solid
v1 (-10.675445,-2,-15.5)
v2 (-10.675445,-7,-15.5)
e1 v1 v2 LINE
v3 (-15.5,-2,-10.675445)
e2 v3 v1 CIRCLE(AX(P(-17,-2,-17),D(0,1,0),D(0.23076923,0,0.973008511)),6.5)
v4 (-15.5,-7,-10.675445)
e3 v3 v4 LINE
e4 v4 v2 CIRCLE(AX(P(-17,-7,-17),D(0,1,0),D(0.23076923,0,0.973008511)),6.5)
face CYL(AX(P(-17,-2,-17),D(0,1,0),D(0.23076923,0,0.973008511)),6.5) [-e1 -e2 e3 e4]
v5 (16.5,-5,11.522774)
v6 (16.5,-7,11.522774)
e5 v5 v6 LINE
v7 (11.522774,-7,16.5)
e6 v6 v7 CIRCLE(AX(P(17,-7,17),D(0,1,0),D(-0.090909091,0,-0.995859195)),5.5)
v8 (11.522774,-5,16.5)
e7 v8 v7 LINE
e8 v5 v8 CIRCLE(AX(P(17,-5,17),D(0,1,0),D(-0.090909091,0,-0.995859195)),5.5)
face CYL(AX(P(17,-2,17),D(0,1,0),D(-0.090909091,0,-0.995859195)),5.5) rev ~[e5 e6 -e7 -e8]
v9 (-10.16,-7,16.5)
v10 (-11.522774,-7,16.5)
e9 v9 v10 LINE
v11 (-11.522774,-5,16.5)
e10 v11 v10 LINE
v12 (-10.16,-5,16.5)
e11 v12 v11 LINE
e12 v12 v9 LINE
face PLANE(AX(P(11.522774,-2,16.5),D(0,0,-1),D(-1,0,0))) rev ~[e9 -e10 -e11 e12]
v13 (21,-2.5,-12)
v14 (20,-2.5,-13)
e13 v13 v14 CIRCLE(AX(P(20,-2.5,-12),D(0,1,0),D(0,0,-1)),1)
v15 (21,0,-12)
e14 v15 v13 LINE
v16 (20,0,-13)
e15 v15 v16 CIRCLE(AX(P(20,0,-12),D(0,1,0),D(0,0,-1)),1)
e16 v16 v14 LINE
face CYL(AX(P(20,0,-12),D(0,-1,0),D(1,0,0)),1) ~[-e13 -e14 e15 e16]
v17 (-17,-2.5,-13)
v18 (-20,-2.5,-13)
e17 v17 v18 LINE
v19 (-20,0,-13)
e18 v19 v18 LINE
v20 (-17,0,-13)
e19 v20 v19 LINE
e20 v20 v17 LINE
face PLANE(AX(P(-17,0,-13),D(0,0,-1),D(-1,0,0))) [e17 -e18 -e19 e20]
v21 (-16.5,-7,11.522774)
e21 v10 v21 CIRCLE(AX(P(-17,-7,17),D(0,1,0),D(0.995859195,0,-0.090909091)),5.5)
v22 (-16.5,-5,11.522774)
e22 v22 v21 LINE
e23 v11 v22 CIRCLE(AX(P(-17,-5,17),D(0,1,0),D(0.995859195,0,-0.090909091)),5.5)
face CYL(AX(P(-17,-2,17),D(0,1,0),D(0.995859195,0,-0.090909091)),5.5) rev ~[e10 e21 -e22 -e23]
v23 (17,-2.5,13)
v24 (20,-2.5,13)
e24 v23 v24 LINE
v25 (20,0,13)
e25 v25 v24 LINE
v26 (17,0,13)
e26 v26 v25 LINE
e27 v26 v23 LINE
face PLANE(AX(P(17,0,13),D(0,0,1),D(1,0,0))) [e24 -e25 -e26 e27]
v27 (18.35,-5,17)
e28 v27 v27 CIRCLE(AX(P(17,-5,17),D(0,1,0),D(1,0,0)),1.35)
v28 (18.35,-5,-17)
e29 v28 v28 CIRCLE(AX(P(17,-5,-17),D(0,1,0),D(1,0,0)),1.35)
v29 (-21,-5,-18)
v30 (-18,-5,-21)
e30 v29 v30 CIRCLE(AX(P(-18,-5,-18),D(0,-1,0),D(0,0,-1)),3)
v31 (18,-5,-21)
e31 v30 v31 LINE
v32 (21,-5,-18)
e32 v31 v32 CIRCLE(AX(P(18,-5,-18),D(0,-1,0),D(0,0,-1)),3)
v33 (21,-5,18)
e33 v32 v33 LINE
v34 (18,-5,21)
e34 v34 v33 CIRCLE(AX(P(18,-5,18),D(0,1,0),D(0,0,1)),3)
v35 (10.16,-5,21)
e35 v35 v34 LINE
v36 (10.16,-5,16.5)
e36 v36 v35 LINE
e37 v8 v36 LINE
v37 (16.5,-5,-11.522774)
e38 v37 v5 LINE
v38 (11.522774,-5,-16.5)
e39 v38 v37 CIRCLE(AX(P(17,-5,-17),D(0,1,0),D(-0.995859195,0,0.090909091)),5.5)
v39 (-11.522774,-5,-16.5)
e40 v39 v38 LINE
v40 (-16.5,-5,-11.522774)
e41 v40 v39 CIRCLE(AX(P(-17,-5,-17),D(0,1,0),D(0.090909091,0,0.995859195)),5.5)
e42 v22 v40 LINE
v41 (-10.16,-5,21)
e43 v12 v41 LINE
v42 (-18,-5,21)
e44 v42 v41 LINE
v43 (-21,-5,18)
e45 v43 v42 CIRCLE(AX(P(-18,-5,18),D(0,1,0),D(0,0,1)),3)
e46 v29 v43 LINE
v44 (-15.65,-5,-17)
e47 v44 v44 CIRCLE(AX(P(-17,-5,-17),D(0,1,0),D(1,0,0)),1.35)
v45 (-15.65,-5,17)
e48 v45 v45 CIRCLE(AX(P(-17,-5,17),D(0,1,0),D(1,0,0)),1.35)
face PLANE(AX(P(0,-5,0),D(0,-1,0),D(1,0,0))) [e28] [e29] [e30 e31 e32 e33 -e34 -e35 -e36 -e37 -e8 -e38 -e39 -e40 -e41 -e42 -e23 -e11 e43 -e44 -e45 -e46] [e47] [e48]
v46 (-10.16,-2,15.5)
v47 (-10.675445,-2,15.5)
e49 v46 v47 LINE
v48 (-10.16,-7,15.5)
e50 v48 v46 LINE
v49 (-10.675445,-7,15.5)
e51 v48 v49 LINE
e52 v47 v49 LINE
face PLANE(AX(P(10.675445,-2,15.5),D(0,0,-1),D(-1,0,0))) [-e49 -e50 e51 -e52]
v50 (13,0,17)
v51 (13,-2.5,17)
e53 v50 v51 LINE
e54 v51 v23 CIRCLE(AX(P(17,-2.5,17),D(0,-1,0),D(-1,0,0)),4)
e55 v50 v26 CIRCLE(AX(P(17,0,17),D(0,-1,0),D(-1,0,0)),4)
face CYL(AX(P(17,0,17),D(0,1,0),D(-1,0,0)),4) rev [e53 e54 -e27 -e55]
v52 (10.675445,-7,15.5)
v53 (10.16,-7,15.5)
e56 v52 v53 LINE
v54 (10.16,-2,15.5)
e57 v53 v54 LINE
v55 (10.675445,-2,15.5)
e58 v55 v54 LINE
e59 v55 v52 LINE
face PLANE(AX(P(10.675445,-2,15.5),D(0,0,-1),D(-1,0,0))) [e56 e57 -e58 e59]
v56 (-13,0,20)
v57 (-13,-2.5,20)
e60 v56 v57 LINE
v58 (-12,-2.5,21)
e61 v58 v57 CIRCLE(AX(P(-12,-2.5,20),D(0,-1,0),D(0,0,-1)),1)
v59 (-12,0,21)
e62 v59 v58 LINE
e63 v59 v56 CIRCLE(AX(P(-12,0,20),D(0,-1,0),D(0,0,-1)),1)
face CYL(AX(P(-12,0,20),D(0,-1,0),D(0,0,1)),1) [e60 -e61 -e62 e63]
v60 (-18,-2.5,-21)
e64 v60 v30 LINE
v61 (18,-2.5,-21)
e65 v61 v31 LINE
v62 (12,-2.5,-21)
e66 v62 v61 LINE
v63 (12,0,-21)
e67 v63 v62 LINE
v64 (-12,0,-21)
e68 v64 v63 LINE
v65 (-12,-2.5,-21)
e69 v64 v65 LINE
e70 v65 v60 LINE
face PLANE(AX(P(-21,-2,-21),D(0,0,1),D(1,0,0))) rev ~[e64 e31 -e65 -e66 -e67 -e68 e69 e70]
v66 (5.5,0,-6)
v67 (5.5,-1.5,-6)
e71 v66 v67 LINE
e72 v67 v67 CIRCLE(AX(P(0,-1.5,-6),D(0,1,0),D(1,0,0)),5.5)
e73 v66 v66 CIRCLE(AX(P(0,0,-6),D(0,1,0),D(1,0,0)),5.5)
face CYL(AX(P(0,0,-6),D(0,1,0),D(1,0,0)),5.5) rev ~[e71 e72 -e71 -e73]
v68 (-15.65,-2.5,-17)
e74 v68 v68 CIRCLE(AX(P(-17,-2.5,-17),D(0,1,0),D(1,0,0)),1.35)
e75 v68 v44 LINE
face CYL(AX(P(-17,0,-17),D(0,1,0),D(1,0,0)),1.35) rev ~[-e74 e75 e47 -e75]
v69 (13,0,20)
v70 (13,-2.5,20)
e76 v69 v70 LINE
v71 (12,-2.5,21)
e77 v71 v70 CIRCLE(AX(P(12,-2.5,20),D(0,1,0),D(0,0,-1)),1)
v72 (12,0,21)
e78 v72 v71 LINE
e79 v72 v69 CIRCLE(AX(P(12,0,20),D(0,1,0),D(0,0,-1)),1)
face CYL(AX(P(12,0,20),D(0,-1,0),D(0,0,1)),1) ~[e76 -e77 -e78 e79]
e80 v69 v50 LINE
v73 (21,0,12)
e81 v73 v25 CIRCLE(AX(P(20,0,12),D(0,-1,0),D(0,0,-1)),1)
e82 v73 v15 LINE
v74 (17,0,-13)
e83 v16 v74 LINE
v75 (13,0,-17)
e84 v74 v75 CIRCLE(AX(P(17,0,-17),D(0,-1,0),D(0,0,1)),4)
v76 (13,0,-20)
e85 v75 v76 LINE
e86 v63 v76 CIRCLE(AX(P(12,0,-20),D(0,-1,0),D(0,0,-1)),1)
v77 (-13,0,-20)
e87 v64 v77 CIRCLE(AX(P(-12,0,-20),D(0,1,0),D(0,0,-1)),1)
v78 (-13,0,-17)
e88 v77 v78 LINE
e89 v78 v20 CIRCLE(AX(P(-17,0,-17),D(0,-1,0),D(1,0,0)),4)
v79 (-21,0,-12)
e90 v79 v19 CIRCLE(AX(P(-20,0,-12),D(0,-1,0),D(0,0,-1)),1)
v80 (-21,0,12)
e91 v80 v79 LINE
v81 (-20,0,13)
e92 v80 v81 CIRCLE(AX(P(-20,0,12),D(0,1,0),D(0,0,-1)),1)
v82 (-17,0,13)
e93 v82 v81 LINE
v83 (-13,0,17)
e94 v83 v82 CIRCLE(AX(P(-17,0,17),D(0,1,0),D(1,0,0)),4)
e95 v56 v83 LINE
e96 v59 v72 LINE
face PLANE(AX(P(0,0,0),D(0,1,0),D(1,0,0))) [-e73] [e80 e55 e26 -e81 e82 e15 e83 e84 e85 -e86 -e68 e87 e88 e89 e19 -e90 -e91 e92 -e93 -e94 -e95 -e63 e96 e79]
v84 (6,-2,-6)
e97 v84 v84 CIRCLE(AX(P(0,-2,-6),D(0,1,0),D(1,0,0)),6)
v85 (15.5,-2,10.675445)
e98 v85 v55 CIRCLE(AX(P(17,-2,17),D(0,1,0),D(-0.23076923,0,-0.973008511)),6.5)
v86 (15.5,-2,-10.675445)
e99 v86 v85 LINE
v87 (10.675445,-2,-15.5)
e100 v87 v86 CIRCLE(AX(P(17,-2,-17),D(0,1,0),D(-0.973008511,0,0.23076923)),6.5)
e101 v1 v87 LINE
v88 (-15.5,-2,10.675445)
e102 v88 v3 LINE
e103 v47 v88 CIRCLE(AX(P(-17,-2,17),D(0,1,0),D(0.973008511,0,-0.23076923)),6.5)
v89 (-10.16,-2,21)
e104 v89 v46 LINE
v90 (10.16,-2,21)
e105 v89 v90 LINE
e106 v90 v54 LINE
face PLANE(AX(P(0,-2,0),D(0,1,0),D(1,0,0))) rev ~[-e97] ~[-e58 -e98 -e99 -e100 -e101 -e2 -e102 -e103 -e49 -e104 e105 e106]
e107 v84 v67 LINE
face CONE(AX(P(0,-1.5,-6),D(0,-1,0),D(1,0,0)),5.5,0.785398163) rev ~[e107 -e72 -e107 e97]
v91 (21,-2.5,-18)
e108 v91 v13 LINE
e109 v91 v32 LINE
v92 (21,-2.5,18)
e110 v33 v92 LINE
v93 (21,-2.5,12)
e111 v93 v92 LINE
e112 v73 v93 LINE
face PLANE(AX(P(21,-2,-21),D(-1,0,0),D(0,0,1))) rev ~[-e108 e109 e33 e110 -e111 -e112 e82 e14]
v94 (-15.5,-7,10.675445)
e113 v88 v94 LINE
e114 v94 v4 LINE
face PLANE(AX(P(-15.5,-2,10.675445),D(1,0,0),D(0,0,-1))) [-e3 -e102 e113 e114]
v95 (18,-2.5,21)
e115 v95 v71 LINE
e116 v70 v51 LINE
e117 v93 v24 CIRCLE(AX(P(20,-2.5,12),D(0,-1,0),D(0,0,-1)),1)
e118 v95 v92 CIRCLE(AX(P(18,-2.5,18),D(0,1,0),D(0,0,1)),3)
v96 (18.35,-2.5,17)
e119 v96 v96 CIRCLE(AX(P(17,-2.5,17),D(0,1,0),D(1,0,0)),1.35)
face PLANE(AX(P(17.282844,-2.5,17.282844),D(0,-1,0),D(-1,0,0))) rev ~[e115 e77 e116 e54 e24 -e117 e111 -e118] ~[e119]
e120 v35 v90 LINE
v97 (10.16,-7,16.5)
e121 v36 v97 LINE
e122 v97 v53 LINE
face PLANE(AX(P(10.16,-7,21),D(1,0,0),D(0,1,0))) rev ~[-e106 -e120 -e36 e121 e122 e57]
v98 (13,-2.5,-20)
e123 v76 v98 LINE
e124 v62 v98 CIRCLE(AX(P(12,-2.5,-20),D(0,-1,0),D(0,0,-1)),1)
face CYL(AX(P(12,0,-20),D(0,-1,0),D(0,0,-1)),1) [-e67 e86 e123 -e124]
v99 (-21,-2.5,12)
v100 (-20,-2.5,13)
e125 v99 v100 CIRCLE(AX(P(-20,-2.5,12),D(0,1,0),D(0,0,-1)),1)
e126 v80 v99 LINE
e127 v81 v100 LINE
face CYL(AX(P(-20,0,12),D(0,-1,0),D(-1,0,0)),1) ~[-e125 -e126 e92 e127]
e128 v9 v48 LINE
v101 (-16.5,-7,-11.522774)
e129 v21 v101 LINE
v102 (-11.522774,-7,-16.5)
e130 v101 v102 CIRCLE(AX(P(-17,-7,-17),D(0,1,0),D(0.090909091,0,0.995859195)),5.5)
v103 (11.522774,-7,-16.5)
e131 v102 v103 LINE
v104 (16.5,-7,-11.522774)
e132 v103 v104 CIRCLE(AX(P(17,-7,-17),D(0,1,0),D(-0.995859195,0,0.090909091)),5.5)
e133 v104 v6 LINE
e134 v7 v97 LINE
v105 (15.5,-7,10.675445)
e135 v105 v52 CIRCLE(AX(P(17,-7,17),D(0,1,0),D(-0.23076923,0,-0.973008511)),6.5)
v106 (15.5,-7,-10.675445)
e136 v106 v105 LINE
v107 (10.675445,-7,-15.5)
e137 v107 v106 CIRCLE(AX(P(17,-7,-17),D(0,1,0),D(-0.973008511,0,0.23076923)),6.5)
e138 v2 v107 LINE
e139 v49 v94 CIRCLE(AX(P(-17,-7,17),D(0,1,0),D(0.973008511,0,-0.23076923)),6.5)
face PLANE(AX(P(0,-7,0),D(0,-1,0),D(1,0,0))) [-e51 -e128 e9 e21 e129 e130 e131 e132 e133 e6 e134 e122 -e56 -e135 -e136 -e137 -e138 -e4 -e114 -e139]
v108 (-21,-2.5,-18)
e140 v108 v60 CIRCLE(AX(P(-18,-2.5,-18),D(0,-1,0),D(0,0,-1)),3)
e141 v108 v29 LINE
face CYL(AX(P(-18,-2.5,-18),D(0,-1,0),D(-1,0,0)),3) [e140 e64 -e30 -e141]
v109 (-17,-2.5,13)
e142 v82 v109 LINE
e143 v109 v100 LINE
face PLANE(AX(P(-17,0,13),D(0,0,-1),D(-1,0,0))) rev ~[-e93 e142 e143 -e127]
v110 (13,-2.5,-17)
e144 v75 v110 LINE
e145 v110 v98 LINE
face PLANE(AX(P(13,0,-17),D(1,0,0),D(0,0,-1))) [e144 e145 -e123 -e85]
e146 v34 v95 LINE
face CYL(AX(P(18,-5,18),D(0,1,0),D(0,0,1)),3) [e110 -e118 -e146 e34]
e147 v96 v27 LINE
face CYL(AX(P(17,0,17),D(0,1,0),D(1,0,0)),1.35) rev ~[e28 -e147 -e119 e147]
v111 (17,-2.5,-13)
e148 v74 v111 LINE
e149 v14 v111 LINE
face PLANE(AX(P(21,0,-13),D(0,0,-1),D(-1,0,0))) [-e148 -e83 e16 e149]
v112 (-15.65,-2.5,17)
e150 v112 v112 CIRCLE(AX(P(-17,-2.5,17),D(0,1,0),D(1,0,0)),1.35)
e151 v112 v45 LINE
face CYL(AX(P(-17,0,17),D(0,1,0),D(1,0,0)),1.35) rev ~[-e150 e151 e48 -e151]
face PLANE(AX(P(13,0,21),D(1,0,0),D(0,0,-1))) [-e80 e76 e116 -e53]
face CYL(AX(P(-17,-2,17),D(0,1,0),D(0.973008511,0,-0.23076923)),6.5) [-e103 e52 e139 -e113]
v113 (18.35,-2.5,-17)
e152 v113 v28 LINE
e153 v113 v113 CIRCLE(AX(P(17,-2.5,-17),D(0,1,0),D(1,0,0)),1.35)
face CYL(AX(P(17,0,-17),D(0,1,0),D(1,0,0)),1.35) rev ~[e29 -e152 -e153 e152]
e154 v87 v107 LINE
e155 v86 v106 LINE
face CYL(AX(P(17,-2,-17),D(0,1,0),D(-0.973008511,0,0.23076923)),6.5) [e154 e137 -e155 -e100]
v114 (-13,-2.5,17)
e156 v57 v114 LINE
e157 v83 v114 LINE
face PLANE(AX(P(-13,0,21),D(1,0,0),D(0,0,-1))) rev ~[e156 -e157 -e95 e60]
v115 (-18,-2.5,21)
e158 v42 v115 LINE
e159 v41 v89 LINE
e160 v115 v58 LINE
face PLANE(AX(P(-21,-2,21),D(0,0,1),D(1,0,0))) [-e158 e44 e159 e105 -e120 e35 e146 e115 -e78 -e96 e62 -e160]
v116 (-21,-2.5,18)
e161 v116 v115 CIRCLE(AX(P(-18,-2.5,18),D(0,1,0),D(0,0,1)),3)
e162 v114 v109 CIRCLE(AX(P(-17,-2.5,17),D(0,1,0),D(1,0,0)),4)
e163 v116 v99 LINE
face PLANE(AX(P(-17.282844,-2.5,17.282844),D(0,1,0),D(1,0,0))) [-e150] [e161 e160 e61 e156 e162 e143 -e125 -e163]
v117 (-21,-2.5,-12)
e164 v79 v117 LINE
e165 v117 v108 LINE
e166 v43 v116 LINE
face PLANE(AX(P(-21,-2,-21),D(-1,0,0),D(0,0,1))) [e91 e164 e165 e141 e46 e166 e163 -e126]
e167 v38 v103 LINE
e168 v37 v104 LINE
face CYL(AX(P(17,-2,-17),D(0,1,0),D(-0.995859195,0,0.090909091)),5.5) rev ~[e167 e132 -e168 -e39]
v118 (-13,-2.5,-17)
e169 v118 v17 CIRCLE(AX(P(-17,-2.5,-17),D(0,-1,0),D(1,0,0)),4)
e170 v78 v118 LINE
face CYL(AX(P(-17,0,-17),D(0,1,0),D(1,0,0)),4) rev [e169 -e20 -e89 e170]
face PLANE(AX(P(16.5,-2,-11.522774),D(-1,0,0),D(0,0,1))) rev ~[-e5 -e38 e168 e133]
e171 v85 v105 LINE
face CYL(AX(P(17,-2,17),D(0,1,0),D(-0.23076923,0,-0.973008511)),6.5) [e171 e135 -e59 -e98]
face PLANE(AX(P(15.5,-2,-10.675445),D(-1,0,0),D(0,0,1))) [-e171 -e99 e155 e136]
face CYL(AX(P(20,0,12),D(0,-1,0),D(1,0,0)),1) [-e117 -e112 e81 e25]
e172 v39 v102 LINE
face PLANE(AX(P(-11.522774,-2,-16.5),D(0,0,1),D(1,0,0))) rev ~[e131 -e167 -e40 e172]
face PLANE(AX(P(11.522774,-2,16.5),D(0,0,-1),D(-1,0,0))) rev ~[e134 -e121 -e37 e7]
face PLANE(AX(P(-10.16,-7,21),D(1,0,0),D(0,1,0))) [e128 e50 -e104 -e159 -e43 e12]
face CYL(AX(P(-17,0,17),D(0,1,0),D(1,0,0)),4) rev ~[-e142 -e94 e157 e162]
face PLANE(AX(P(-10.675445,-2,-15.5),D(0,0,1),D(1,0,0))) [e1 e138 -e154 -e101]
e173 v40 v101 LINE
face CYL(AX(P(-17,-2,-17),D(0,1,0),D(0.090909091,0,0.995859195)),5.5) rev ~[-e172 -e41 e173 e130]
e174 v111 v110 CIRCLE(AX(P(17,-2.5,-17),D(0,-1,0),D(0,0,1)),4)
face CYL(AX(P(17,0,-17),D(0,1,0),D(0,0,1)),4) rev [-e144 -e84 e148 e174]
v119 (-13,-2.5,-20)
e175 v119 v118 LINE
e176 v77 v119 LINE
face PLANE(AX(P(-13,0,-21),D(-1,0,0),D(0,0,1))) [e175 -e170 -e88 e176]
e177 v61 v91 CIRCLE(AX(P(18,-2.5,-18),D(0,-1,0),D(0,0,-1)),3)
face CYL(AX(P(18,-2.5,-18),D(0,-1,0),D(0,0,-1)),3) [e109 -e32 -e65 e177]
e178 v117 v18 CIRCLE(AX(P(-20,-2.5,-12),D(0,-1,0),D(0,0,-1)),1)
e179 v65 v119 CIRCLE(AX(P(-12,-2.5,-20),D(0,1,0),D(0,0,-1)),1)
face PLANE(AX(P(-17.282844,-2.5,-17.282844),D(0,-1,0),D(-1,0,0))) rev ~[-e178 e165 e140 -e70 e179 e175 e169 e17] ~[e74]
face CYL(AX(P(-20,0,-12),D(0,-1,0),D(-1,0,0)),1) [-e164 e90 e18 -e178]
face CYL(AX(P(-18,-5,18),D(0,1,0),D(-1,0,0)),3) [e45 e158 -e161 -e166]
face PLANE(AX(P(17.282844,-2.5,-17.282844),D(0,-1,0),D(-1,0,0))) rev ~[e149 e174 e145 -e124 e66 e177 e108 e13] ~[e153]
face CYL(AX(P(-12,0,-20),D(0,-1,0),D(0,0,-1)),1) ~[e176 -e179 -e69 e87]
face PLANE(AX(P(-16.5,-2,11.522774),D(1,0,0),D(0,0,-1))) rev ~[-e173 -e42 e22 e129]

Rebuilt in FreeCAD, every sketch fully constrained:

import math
import FreeCAD as App
import Part
import Sketcher
Q = App.Units.Quantity


def edges_at(feature, points):
    """Names of the edges that pass closest to the given points."""
    edges = feature.Shape.Edges
    near = lambda p: min(range(len(edges)), key=lambda i: edges[i].distToShape(Part.Vertex(*p))[0])
    return sorted({f"Edge{near(p) + 1}" for p in points})


def add_polygon(sketch, points):
    """Adds a closed chain of lines whose ends are joined by coincident constraints."""
    first, n = sketch.GeometryCount, len(points)
    for a, b in zip(points, points[1:] + points[:1]):
        sketch.addGeometry(Part.LineSegment(App.Vector(*a, 0), App.Vector(*b, 0)), False)
    for i in range(n):
        sketch.addConstraint(Sketcher.Constraint("Coincident", first + i, 2, first + (i + 1) % n, 1))

doc = App.newDocument("Part")
body = doc.addObject("PartDesign::Body", "Body")

# Sketch on XZ plane
sketch1 = doc.addObject("Sketcher::SketchObject", "Sketch")
body.addObject(sketch1)
sketch1.AttachmentSupport = (doc.XZ_Plane, [""])
sketch1.MapMode = "FlatFace"
add_polygon(sketch1, [(-21, -21), (-21, 21), (21, 21), (21, -21)])  # lines 0-3
sketch1.addGeometry(Part.Circle(App.Vector(0, -6, 0), App.Vector(0, 0, 1), 5.5), False)  # 4
sketch1.addConstraint(Sketcher.Constraint("Vertical", 0))
sketch1.addConstraint(Sketcher.Constraint("Horizontal", 1))
sketch1.addConstraint(Sketcher.Constraint("Vertical", 2))
sketch1.addConstraint(Sketcher.Constraint("Horizontal", 3))
sketch1.addConstraint(Sketcher.Constraint("Symmetric", 0, 2, 2, 2, -1, 1))
sketch1.addConstraint(Sketcher.Constraint("PointOnObject", 4, 3, -2))
sketch1.addConstraint(Sketcher.Constraint("Equal", 3, 0))
sketch1.addConstraint(Sketcher.Constraint("Diameter", 4, Q("11 mm")))
sketch1.addConstraint(Sketcher.Constraint("DistanceX", 1, 1, 1, 2, Q("42 mm")))
sketch1.addConstraint(Sketcher.Constraint("DistanceY", 4, 3, -1, 1, Q("6 mm")))
pad1 = doc.addObject("PartDesign::Pad", "Pad")
body.addObject(pad1)
pad1.Profile = sketch1
pad1.Length = 2

# Sketch on XZ plane
sketch2 = doc.addObject("Sketcher::SketchObject", "Sketch001")
body.addObject(sketch2)
sketch2.AttachmentSupport = (doc.XZ_Plane, [""])
sketch2.MapMode = "FlatFace"
sketch2.AttachmentOffset = App.Placement(App.Vector(0, 0, 2), App.Rotation())
add_polygon(sketch2, [(-21, 21), (-21, -21), (21, -21), (21, 21)])  # lines 0-3
sketch2.addGeometry(Part.LineSegment(App.Vector(-17, -11.522774, 0), App.Vector(-17, 11.522774, 0)), False)  # 4
sketch2.addGeometry(Part.ArcOfCircle(Part.Circle(App.Vector(-16.5, 11.522774, 0), App.Vector(0, 0, 1), 0.5), math.radians(95.215909), math.radians(180)), False)  # 5
sketch2.addGeometry(Part.ArcOfCircle(Part.Circle(App.Vector(-17, 17, 0), App.Vector(0, 0, 1), 5), math.radians(-84.784091), math.radians(-5.215909)), False)  # 6
sketch2.addGeometry(Part.ArcOfCircle(Part.Circle(App.Vector(-11.522774, 16.5, 0), App.Vector(0, 0, 1), 0.5), math.radians(90), math.radians(174.784091)), False)  # 7
sketch2.addGeometry(Part.LineSegment(App.Vector(-11.522774, 17, 0), App.Vector(11.522774, 17, 0)), False)  # 8
sketch2.addGeometry(Part.ArcOfCircle(Part.Circle(App.Vector(11.522774, 16.5, 0), App.Vector(0, 0, 1), 0.5), math.radians(5.215909), math.radians(90)), False)  # 9
sketch2.addGeometry(Part.ArcOfCircle(Part.Circle(App.Vector(17, 17, 0), App.Vector(0, 0, 1), 5), math.radians(-174.784091), math.radians(-95.215909)), False)  # 10
sketch2.addGeometry(Part.ArcOfCircle(Part.Circle(App.Vector(16.5, 11.522774, 0), App.Vector(0, 0, 1), 0.5), math.radians(0), math.radians(84.784091)), False)  # 11
sketch2.addGeometry(Part.LineSegment(App.Vector(17, 11.522774, 0), App.Vector(17, -11.522774, 0)), False)  # 12
sketch2.addGeometry(Part.ArcOfCircle(Part.Circle(App.Vector(16.5, -11.522774, 0), App.Vector(0, 0, 1), 0.5), math.radians(-84.784091), math.radians(0)), False)  # 13
sketch2.addGeometry(Part.ArcOfCircle(Part.Circle(App.Vector(17, -17, 0), App.Vector(0, 0, 1), 5), math.radians(95.215909), math.radians(174.784091)), False)  # 14
sketch2.addGeometry(Part.ArcOfCircle(Part.Circle(App.Vector(11.522774, -16.5, 0), App.Vector(0, 0, 1), 0.5), math.radians(-90), math.radians(-5.215909)), False)  # 15
sketch2.addGeometry(Part.LineSegment(App.Vector(11.522774, -17, 0), App.Vector(-11.522774, -17, 0)), False)  # 16
sketch2.addGeometry(Part.ArcOfCircle(Part.Circle(App.Vector(-11.522774, -16.5, 0), App.Vector(0, 0, 1), 0.5), math.radians(-174.784091), math.radians(-90)), False)  # 17
sketch2.addGeometry(Part.ArcOfCircle(Part.Circle(App.Vector(-17, -17, 0), App.Vector(0, 0, 1), 5), math.radians(5.215909), math.radians(84.784091)), False)  # 18
sketch2.addGeometry(Part.ArcOfCircle(Part.Circle(App.Vector(-16.5, -11.522774, 0), App.Vector(0, 0, 1), 0.5), math.radians(180), math.radians(264.784091)), False)  # 19
sketch2.addConstraint(Sketcher.Constraint("Tangent", 4, 2, 5, 2))
sketch2.addConstraint(Sketcher.Constraint("Tangent", 5, 1, 6, 1))
sketch2.addConstraint(Sketcher.Constraint("Tangent", 6, 2, 7, 2))
sketch2.addConstraint(Sketcher.Constraint("Tangent", 7, 1, 8, 1))
sketch2.addConstraint(Sketcher.Constraint("Tangent", 8, 2, 9, 2))
sketch2.addConstraint(Sketcher.Constraint("Tangent", 9, 1, 10, 1))
sketch2.addConstraint(Sketcher.Constraint("Tangent", 10, 2, 11, 2))
sketch2.addConstraint(Sketcher.Constraint("Tangent", 11, 1, 12, 1))
sketch2.addConstraint(Sketcher.Constraint("Tangent", 12, 2, 13, 2))
sketch2.addConstraint(Sketcher.Constraint("Tangent", 13, 1, 14, 1))
sketch2.addConstraint(Sketcher.Constraint("Tangent", 14, 2, 15, 2))
sketch2.addConstraint(Sketcher.Constraint("Tangent", 15, 1, 16, 1))
sketch2.addConstraint(Sketcher.Constraint("Tangent", 16, 2, 17, 2))
sketch2.addConstraint(Sketcher.Constraint("Tangent", 17, 1, 18, 1))
sketch2.addConstraint(Sketcher.Constraint("Tangent", 18, 2, 19, 2))
sketch2.addConstraint(Sketcher.Constraint("Tangent", 19, 1, 4, 1))
sketch2.addConstraint(Sketcher.Constraint("Vertical", 0))
sketch2.addConstraint(Sketcher.Constraint("Horizontal", 1))
sketch2.addConstraint(Sketcher.Constraint("Vertical", 2))
sketch2.addConstraint(Sketcher.Constraint("Horizontal", 3))
sketch2.addConstraint(Sketcher.Constraint("Vertical", 4))
sketch2.addConstraint(Sketcher.Constraint("Horizontal", 8))
sketch2.addConstraint(Sketcher.Constraint("Vertical", 12))
sketch2.addConstraint(Sketcher.Constraint("Horizontal", 16))
sketch2.addConstraint(Sketcher.Constraint("Equal", 5, 7))
sketch2.addConstraint(Sketcher.Constraint("Equal", 7, 9))
sketch2.addConstraint(Sketcher.Constraint("Equal", 6, 10))
sketch2.addConstraint(Sketcher.Constraint("Equal", 9, 11))
sketch2.addConstraint(Sketcher.Constraint("Equal", 11, 13))
sketch2.addConstraint(Sketcher.Constraint("Equal", 10, 14))
sketch2.addConstraint(Sketcher.Constraint("Equal", 13, 15))
sketch2.addConstraint(Sketcher.Constraint("Equal", 15, 17))
sketch2.addConstraint(Sketcher.Constraint("Equal", 14, 18))
sketch2.addConstraint(Sketcher.Constraint("Equal", 17, 19))
sketch2.addConstraint(Sketcher.Constraint("Symmetric", 5, 3, 13, 3, -1, 1))
sketch2.addConstraint(Sketcher.Constraint("Symmetric", 7, 3, 15, 3, -1, 1))
sketch2.addConstraint(Sketcher.Constraint("Symmetric", 10, 3, 18, 3, -1, 1))
sketch2.addConstraint(Sketcher.Constraint("Symmetric", 0, 2, 2, 2, -1, 1))
sketch2.addConstraint(Sketcher.Constraint("Symmetric", 6, 3, 10, 3, -2))
sketch2.addConstraint(Sketcher.Constraint("Horizontal", 10, 3, 7, 1))
sketch2.addConstraint(Sketcher.Constraint("Vertical", 18, 3, 4, 2))
sketch2.addConstraint(Sketcher.Constraint("Equal", 3, 0))
sketch2.addConstraint(Sketcher.Constraint("Equal", 16, 4))
sketch2.addConstraint(Sketcher.Constraint("Radius", 6, Q("5 mm")))
sketch2.addConstraint(Sketcher.Constraint("Radius", 5, Q("0.5 mm")))
sketch2.addConstraint(Sketcher.Constraint("DistanceX", 1, 1, 1, 2, Q("42 mm")))
sketch2.addConstraint(Sketcher.Constraint("DistanceX", 6, 3, -1, 1, Q("17 mm")))
pad2 = doc.addObject("PartDesign::Pad", "Pad001")
body.addObject(pad2)
pad2.Profile = sketch2
pad2.Length = 3

# Sketch on XZ plane
sketch3 = doc.addObject("Sketcher::SketchObject", "Sketch002")
body.addObject(sketch3)
sketch3.AttachmentSupport = (doc.XZ_Plane, [""])
sketch3.MapMode = "FlatFace"
sketch3.AttachmentOffset = App.Placement(App.Vector(0, 0, 2), App.Rotation())
sketch3.addGeometry(Part.LineSegment(App.Vector(-17, 11.522774, 0), App.Vector(-17, -11.522774, 0)), False)
sketch3.addGeometry(Part.ArcOfCircle(Part.Circle(App.Vector(-16.5, -11.522774, 0), App.Vector(0, 0, 1), 0.5), math.radians(180), math.radians(264.784091)), False)
sketch3.addGeometry(Part.ArcOfCircle(Part.Circle(App.Vector(-17, -17, 0), App.Vector(0, 0, 1), 5), math.radians(5.215909), math.radians(84.784091)), False)
sketch3.addGeometry(Part.ArcOfCircle(Part.Circle(App.Vector(-11.522774, -16.5, 0), App.Vector(0, 0, 1), 0.5), math.radians(-174.784091), math.radians(-90)), False)
sketch3.addGeometry(Part.LineSegment(App.Vector(-11.522774, -17, 0), App.Vector(11.522774, -17, 0)), False)
sketch3.addGeometry(Part.ArcOfCircle(Part.Circle(App.Vector(11.522774, -16.5, 0), App.Vector(0, 0, 1), 0.5), math.radians(-90), math.radians(-5.215909)), False)
sketch3.addGeometry(Part.ArcOfCircle(Part.Circle(App.Vector(17, -17, 0), App.Vector(0, 0, 1), 5), math.radians(95.215909), math.radians(174.784091)), False)
sketch3.addGeometry(Part.ArcOfCircle(Part.Circle(App.Vector(16.5, -11.522774, 0), App.Vector(0, 0, 1), 0.5), math.radians(-84.784091), math.radians(0)), False)
sketch3.addGeometry(Part.LineSegment(App.Vector(17, -11.522774, 0), App.Vector(17, 11.522774, 0)), False)
sketch3.addGeometry(Part.ArcOfCircle(Part.Circle(App.Vector(16.5, 11.522774, 0), App.Vector(0, 0, 1), 0.5), math.radians(0), math.radians(84.784091)), False)
sketch3.addGeometry(Part.ArcOfCircle(Part.Circle(App.Vector(17, 17, 0), App.Vector(0, 0, 1), 5), math.radians(-174.784091), math.radians(-95.215909)), False)
sketch3.addGeometry(Part.ArcOfCircle(Part.Circle(App.Vector(11.522774, 16.5, 0), App.Vector(0, 0, 1), 0.5), math.radians(5.215909), math.radians(90)), False)
sketch3.addGeometry(Part.LineSegment(App.Vector(11.522774, 17, 0), App.Vector(-11.522774, 17, 0)), False)
sketch3.addGeometry(Part.ArcOfCircle(Part.Circle(App.Vector(-11.522774, 16.5, 0), App.Vector(0, 0, 1), 0.5), math.radians(90), math.radians(174.784091)), False)
sketch3.addGeometry(Part.ArcOfCircle(Part.Circle(App.Vector(-17, 17, 0), App.Vector(0, 0, 1), 5), math.radians(-84.784091), math.radians(-5.215909)), False)
sketch3.addGeometry(Part.ArcOfCircle(Part.Circle(App.Vector(-16.5, 11.522774, 0), App.Vector(0, 0, 1), 0.5), math.radians(95.215909), math.radians(180)), False)
sketch3.addGeometry(Part.LineSegment(App.Vector(-16.5, -11.522774, 0), App.Vector(-16.5, 11.522774, 0)), False)
sketch3.addGeometry(Part.ArcOfCircle(Part.Circle(App.Vector(-17, 17, 0), App.Vector(0, 0, 1), 5.5), math.radians(-84.784091), math.radians(-5.215909)), False)
sketch3.addGeometry(Part.LineSegment(App.Vector(-11.522774, 16.5, 0), App.Vector(11.522774, 16.5, 0)), False)
sketch3.addGeometry(Part.ArcOfCircle(Part.Circle(App.Vector(17, 17, 0), App.Vector(0, 0, 1), 5.5), math.radians(-174.784091), math.radians(-95.215909)), False)
sketch3.addGeometry(Part.LineSegment(App.Vector(16.5, 11.522774, 0), App.Vector(16.5, -11.522774, 0)), False)
sketch3.addGeometry(Part.ArcOfCircle(Part.Circle(App.Vector(17, -17, 0), App.Vector(0, 0, 1), 5.5), math.radians(95.215909), math.radians(174.784091)), False)
sketch3.addGeometry(Part.LineSegment(App.Vector(11.522774, -16.5, 0), App.Vector(-11.522774, -16.5, 0)), False)
sketch3.addGeometry(Part.ArcOfCircle(Part.Circle(App.Vector(-17, -17, 0), App.Vector(0, 0, 1), 5.5), math.radians(5.215909), math.radians(84.784091)), False)
sketch3.addConstraint(Sketcher.Constraint("Tangent", 0, 2, 1, 1))
sketch3.addConstraint(Sketcher.Constraint("Tangent", 1, 2, 2, 2))
sketch3.addConstraint(Sketcher.Constraint("Tangent", 2, 1, 3, 1))
sketch3.addConstraint(Sketcher.Constraint("Tangent", 3, 2, 4, 1))
sketch3.addConstraint(Sketcher.Constraint("Tangent", 4, 2, 5, 1))
sketch3.addConstraint(Sketcher.Constraint("Tangent", 5, 2, 6, 2))
sketch3.addConstraint(Sketcher.Constraint("Tangent", 6, 1, 7, 1))
sketch3.addConstraint(Sketcher.Constraint("Tangent", 7, 2, 8, 1))
sketch3.addConstraint(Sketcher.Constraint("Tangent", 8, 2, 9, 1))
sketch3.addConstraint(Sketcher.Constraint("Tangent", 9, 2, 10, 2))
sketch3.addConstraint(Sketcher.Constraint("Tangent", 10, 1, 11, 1))
sketch3.addConstraint(Sketcher.Constraint("Tangent", 11, 2, 12, 1))
sketch3.addConstraint(Sketcher.Constraint("Tangent", 12, 2, 13, 1))
sketch3.addConstraint(Sketcher.Constraint("Tangent", 13, 2, 14, 2))
sketch3.addConstraint(Sketcher.Constraint("Tangent", 14, 1, 15, 1))
sketch3.addConstraint(Sketcher.Constraint("Tangent", 15, 2, 0, 1))
sketch3.addConstraint(Sketcher.Constraint("Coincident", 16, 2, 17, 1))
sketch3.addConstraint(Sketcher.Constraint("Coincident", 17, 2, 18, 1))
sketch3.addConstraint(Sketcher.Constraint("Coincident", 18, 2, 19, 1))
sketch3.addConstraint(Sketcher.Constraint("Coincident", 19, 2, 20, 1))
sketch3.addConstraint(Sketcher.Constraint("Coincident", 20, 2, 21, 1))
sketch3.addConstraint(Sketcher.Constraint("Coincident", 21, 2, 22, 1))
sketch3.addConstraint(Sketcher.Constraint("Coincident", 22, 2, 23, 1))
sketch3.addConstraint(Sketcher.Constraint("Coincident", 23, 2, 16, 1))
sketch3.addConstraint(Sketcher.Constraint("Vertical", 0))
sketch3.addConstraint(Sketcher.Constraint("Horizontal", 4))
sketch3.addConstraint(Sketcher.Constraint("Vertical", 8))
sketch3.addConstraint(Sketcher.Constraint("Horizontal", 12))
sketch3.addConstraint(Sketcher.Constraint("Vertical", 16))
sketch3.addConstraint(Sketcher.Constraint("Horizontal", 18))
sketch3.addConstraint(Sketcher.Constraint("Vertical", 20))
sketch3.addConstraint(Sketcher.Constraint("Horizontal", 22))
sketch3.addConstraint(Sketcher.Constraint("Coincident", 17, 3, 14, 3))
sketch3.addConstraint(Sketcher.Constraint("Coincident", 19, 3, 10, 3))
sketch3.addConstraint(Sketcher.Constraint("Coincident", 21, 3, 6, 3))
sketch3.addConstraint(Sketcher.Constraint("Coincident", 23, 3, 2, 3))
sketch3.addConstraint(Sketcher.Constraint("Coincident", 16, 2, 15, 3))
sketch3.addConstraint(Sketcher.Constraint("Coincident", 17, 2, 13, 3))
sketch3.addConstraint(Sketcher.Constraint("Coincident", 18, 2, 11, 3))
sketch3.addConstraint(Sketcher.Constraint("Coincident", 19, 2, 9, 3))
sketch3.addConstraint(Sketcher.Constraint("Coincident", 20, 2, 7, 3))
sketch3.addConstraint(Sketcher.Constraint("Coincident", 21, 2, 5, 3))
sketch3.addConstraint(Sketcher.Constraint("Coincident", 22, 2, 3, 3))
sketch3.addConstraint(Sketcher.Constraint("Equal", 1, 3))
sketch3.addConstraint(Sketcher.Constraint("Equal", 2, 6))
sketch3.addConstraint(Sketcher.Constraint("Equal", 6, 10))
sketch3.addConstraint(Sketcher.Constraint("Equal", 10, 14))
sketch3.addConstraint(Sketcher.Constraint("Symmetric", 1, 3, 9, 3, -1, 1))
sketch3.addConstraint(Sketcher.Constraint("Symmetric", 3, 3, 11, 3, -1, 1))
sketch3.addConstraint(Sketcher.Constraint("Symmetric", 6, 3, 14, 3, -1, 1))
sketch3.addConstraint(Sketcher.Constraint("Symmetric", 2, 3, 6, 3, -2))
sketch3.addConstraint(Sketcher.Constraint("Horizontal", 23, 3, 3, 2))
sketch3.addConstraint(Sketcher.Constraint("Vertical", 23, 3, 0, 2))
sketch3.addConstraint(Sketcher.Constraint("Equal", 22, 0))
sketch3.addConstraint(Sketcher.Constraint("Radius", 2, Q("5 mm")))
sketch3.addConstraint(Sketcher.Constraint("Radius", 1, Q("0.5 mm")))
sketch3.addConstraint(Sketcher.Constraint("DistanceX", 2, 3, -1, 1, Q("17 mm")))
pad3 = doc.addObject("PartDesign::Pad", "Pad002")
body.addObject(pad3)
pad3.Profile = sketch3
pad3.Length = 3

# Sketch on XZ plane
sketch4 = doc.addObject("Sketcher::SketchObject", "Sketch003")
body.addObject(sketch4)
sketch4.AttachmentSupport = (doc.XZ_Plane, [""])
sketch4.MapMode = "FlatFace"
sketch4.AttachmentOffset = App.Placement(App.Vector(0, 0, 2), App.Rotation())
sketch4.addGeometry(Part.LineSegment(App.Vector(11.522774, 16.5, 0), App.Vector(-11.522774, 16.5, 0)), False)
sketch4.addGeometry(Part.ArcOfCircle(Part.Circle(App.Vector(-17, 17, 0), App.Vector(0, 0, 1), 5.5), math.radians(-84.784091), math.radians(-5.215909)), False)
sketch4.addGeometry(Part.LineSegment(App.Vector(-16.5, 11.522774, 0), App.Vector(-16.5, -11.522774, 0)), False)
sketch4.addGeometry(Part.ArcOfCircle(Part.Circle(App.Vector(-17, -17, 0), App.Vector(0, 0, 1), 5.5), math.radians(5.215909), math.radians(84.784091)), False)
sketch4.addGeometry(Part.LineSegment(App.Vector(-11.522774, -16.5, 0), App.Vector(11.522774, -16.5, 0)), False)
sketch4.addGeometry(Part.ArcOfCircle(Part.Circle(App.Vector(17, -17, 0), App.Vector(0, 0, 1), 5.5), math.radians(95.215909), math.radians(174.784091)), False)
sketch4.addGeometry(Part.LineSegment(App.Vector(16.5, -11.522774, 0), App.Vector(16.5, 11.522774, 0)), False)
sketch4.addGeometry(Part.ArcOfCircle(Part.Circle(App.Vector(17, 17, 0), App.Vector(0, 0, 1), 5.5), math.radians(-174.784091), math.radians(-95.215909)), False)
sketch4.addGeometry(Part.LineSegment(App.Vector(-10.675445, 15.5, 0), App.Vector(10.675445, 15.5, 0)), False)
sketch4.addGeometry(Part.ArcOfCircle(Part.Circle(App.Vector(17, 17, 0), App.Vector(0, 0, 1), 6.5), math.radians(-166.657636), math.radians(-103.342364)), False)
sketch4.addGeometry(Part.LineSegment(App.Vector(15.5, 10.675445, 0), App.Vector(15.5, -10.675445, 0)), False)
sketch4.addGeometry(Part.ArcOfCircle(Part.Circle(App.Vector(17, -17, 0), App.Vector(0, 0, 1), 6.5), math.radians(103.342364), math.radians(166.657636)), False)
sketch4.addGeometry(Part.LineSegment(App.Vector(10.675445, -15.5, 0), App.Vector(-10.675445, -15.5, 0)), False)
sketch4.addGeometry(Part.ArcOfCircle(Part.Circle(App.Vector(-17, -17, 0), App.Vector(0, 0, 1), 6.5), math.radians(13.342364), math.radians(76.657636)), False)
sketch4.addGeometry(Part.LineSegment(App.Vector(-15.5, -10.675445, 0), App.Vector(-15.5, 10.675445, 0)), False)
sketch4.addGeometry(Part.ArcOfCircle(Part.Circle(App.Vector(-17, 17, 0), App.Vector(0, 0, 1), 6.5), math.radians(-76.657636), math.radians(-13.342364)), False)
sketch4.addConstraint(Sketcher.Constraint("Coincident", 0, 2, 1, 2))
sketch4.addConstraint(Sketcher.Constraint("Coincident", 1, 1, 2, 1))
sketch4.addConstraint(Sketcher.Constraint("Coincident", 2, 2, 3, 2))
sketch4.addConstraint(Sketcher.Constraint("Coincident", 3, 1, 4, 1))
sketch4.addConstraint(Sketcher.Constraint("Coincident", 4, 2, 5, 2))
sketch4.addConstraint(Sketcher.Constraint("Coincident", 5, 1, 6, 1))
sketch4.addConstraint(Sketcher.Constraint("Coincident", 6, 2, 7, 2))
sketch4.addConstraint(Sketcher.Constraint("Coincident", 7, 1, 0, 1))
sketch4.addConstraint(Sketcher.Constraint("Coincident", 8, 2, 9, 1))
sketch4.addConstraint(Sketcher.Constraint("Coincident", 9, 2, 10, 1))
sketch4.addConstraint(Sketcher.Constraint("Coincident", 10, 2, 11, 1))
sketch4.addConstraint(Sketcher.Constraint("Coincident", 11, 2, 12, 1))
sketch4.addConstraint(Sketcher.Constraint("Coincident", 12, 2, 13, 1))
sketch4.addConstraint(Sketcher.Constraint("Coincident", 13, 2, 14, 1))
sketch4.addConstraint(Sketcher.Constraint("Coincident", 14, 2, 15, 1))
sketch4.addConstraint(Sketcher.Constraint("Coincident", 15, 2, 8, 1))
sketch4.addConstraint(Sketcher.Constraint("Horizontal", 0))
sketch4.addConstraint(Sketcher.Constraint("Vertical", 2))
sketch4.addConstraint(Sketcher.Constraint("Horizontal", 4))
sketch4.addConstraint(Sketcher.Constraint("Vertical", 6))
sketch4.addConstraint(Sketcher.Constraint("Horizontal", 8))
sketch4.addConstraint(Sketcher.Constraint("Vertical", 10))
sketch4.addConstraint(Sketcher.Constraint("Horizontal", 12))
sketch4.addConstraint(Sketcher.Constraint("Vertical", 14))
sketch4.addConstraint(Sketcher.Constraint("Coincident", 9, 3, 7, 3))
sketch4.addConstraint(Sketcher.Constraint("Coincident", 11, 3, 5, 3))
sketch4.addConstraint(Sketcher.Constraint("Coincident", 13, 3, 3, 3))
sketch4.addConstraint(Sketcher.Constraint("Coincident", 15, 3, 1, 3))
sketch4.addConstraint(Sketcher.Constraint("Equal", 1, 3))
sketch4.addConstraint(Sketcher.Constraint("Equal", 3, 5))
sketch4.addConstraint(Sketcher.Constraint("Equal", 5, 7))
sketch4.addConstraint(Sketcher.Constraint("Equal", 9, 11))
sketch4.addConstraint(Sketcher.Constraint("Equal", 11, 13))
sketch4.addConstraint(Sketcher.Constraint("Equal", 13, 15))
sketch4.addConstraint(Sketcher.Constraint("Symmetric", 1, 3, 5, 3, -1, 1))
sketch4.addConstraint(Sketcher.Constraint("Symmetric", 3, 3, 7, 3, -1, 1))
sketch4.addConstraint(Sketcher.Constraint("Symmetric", 3, 3, 5, 3, -2))
sketch4.addConstraint(Sketcher.Constraint("Horizontal", 2, 2, 5, 1))
sketch4.addConstraint(Sketcher.Constraint("Horizontal", 10, 2, 13, 2))
sketch4.addConstraint(Sketcher.Constraint("Vertical", 0, 2, 3, 1))
sketch4.addConstraint(Sketcher.Constraint("Vertical", 8, 2, 11, 2))
sketch4.addConstraint(Sketcher.Constraint("Equal", 4, 2))
sketch4.addConstraint(Sketcher.Constraint("Equal", 12, 10))
sketch4.addConstraint(Sketcher.Constraint("Radius", 1, Q("5.5 mm")))
sketch4.addConstraint(Sketcher.Constraint("Radius", 9, Q("6.5 mm")))
sketch4.addConstraint(Sketcher.Constraint("DistanceX", 1, 3, -1, 1, Q("17 mm")))
sketch4.addConstraint(Sketcher.Constraint("DistanceY", -1, 1, 1, 3, Q("17 mm")))
sketch4.addConstraint(Sketcher.Constraint("DistanceY", 8, 2, 7, 1, Q("1 mm")))
sketch4.addConstraint(Sketcher.Constraint("DistanceY", -1, 1, 0, 2, Q("16.5 mm")))
pad4 = doc.addObject("PartDesign::Pad", "Pad003")
body.addObject(pad4)
pad4.Profile = sketch4
pad4.Length = 5

# Sketch on XZ plane
sketch5 = doc.addObject("Sketcher::SketchObject", "Sketch004")
body.addObject(sketch5)
sketch5.AttachmentSupport = (doc.XZ_Plane, [""])
sketch5.MapMode = "FlatFace"
sketch5.addGeometry(Part.LineSegment(App.Vector(-21, -13, 0), App.Vector(-17, -13, 0)), False)
sketch5.addGeometry(Part.ArcOfCircle(Part.Circle(App.Vector(-17, -17, 0), App.Vector(0, 0, 1), 4), math.radians(0), math.radians(90)), False)
sketch5.addGeometry(Part.LineSegment(App.Vector(-13, -17, 0), App.Vector(-13, -21, 0)), False)
sketch5.addGeometry(Part.LineSegment(App.Vector(-13, -21, 0), App.Vector(-21, -21, 0)), False)
sketch5.addGeometry(Part.LineSegment(App.Vector(-21, -21, 0), App.Vector(-21, -13, 0)), False)
sketch5.addGeometry(Part.LineSegment(App.Vector(13, -21, 0), App.Vector(13, -17, 0)), False)
sketch5.addGeometry(Part.ArcOfCircle(Part.Circle(App.Vector(17, -17, 0), App.Vector(0, 0, 1), 4), math.radians(90), math.radians(180)), False)
sketch5.addGeometry(Part.LineSegment(App.Vector(17, -13, 0), App.Vector(21, -13, 0)), False)
sketch5.addGeometry(Part.LineSegment(App.Vector(21, -13, 0), App.Vector(21, -21, 0)), False)
sketch5.addGeometry(Part.LineSegment(App.Vector(21, -21, 0), App.Vector(13, -21, 0)), False)
sketch5.addGeometry(Part.LineSegment(App.Vector(-21, 21, 0), App.Vector(-13, 21, 0)), False)
sketch5.addGeometry(Part.LineSegment(App.Vector(-13, 21, 0), App.Vector(-13, 17, 0)), False)
sketch5.addGeometry(Part.ArcOfCircle(Part.Circle(App.Vector(-17, 17, 0), App.Vector(0, 0, 1), 4), math.radians(-90), math.radians(0)), False)
sketch5.addGeometry(Part.LineSegment(App.Vector(-17, 13, 0), App.Vector(-21, 13, 0)), False)
sketch5.addGeometry(Part.LineSegment(App.Vector(-21, 13, 0), App.Vector(-21, 21, 0)), False)
sketch5.addGeometry(Part.LineSegment(App.Vector(21, 13, 0), App.Vector(17, 13, 0)), False)
sketch5.addGeometry(Part.ArcOfCircle(Part.Circle(App.Vector(17, 17, 0), App.Vector(0, 0, 1), 4), math.radians(180), math.radians(270)), False)
sketch5.addGeometry(Part.LineSegment(App.Vector(13, 17, 0), App.Vector(13, 21, 0)), False)
sketch5.addGeometry(Part.LineSegment(App.Vector(13, 21, 0), App.Vector(21, 21, 0)), False)
sketch5.addGeometry(Part.LineSegment(App.Vector(21, 21, 0), App.Vector(21, 13, 0)), False)
sketch5.addConstraint(Sketcher.Constraint("Tangent", 0, 2, 1, 2))
sketch5.addConstraint(Sketcher.Constraint("Tangent", 1, 1, 2, 1))
sketch5.addConstraint(Sketcher.Constraint("Coincident", 2, 2, 3, 1))
sketch5.addConstraint(Sketcher.Constraint("Coincident", 3, 2, 4, 1))
sketch5.addConstraint(Sketcher.Constraint("Coincident", 4, 2, 0, 1))
sketch5.addConstraint(Sketcher.Constraint("Tangent", 5, 2, 6, 2))
sketch5.addConstraint(Sketcher.Constraint("Tangent", 6, 1, 7, 1))
sketch5.addConstraint(Sketcher.Constraint("Coincident", 7, 2, 8, 1))
sketch5.addConstraint(Sketcher.Constraint("Coincident", 8, 2, 9, 1))
sketch5.addConstraint(Sketcher.Constraint("Coincident", 9, 2, 5, 1))
sketch5.addConstraint(Sketcher.Constraint("Coincident", 10, 2, 11, 1))
sketch5.addConstraint(Sketcher.Constraint("Tangent", 11, 2, 12, 2))
sketch5.addConstraint(Sketcher.Constraint("Tangent", 12, 1, 13, 1))
sketch5.addConstraint(Sketcher.Constraint("Coincident", 13, 2, 14, 1))
sketch5.addConstraint(Sketcher.Constraint("Coincident", 14, 2, 10, 1))
sketch5.addConstraint(Sketcher.Constraint("Tangent", 15, 2, 16, 2))
sketch5.addConstraint(Sketcher.Constraint("Tangent", 16, 1, 17, 1))
sketch5.addConstraint(Sketcher.Constraint("Coincident", 17, 2, 18, 1))
sketch5.addConstraint(Sketcher.Constraint("Coincident", 18, 2, 19, 1))
sketch5.addConstraint(Sketcher.Constraint("Coincident", 19, 2, 15, 1))
sketch5.addConstraint(Sketcher.Constraint("Horizontal", 0))
sketch5.addConstraint(Sketcher.Constraint("Vertical", 2))
sketch5.addConstraint(Sketcher.Constraint("Horizontal", 3))
sketch5.addConstraint(Sketcher.Constraint("Vertical", 4))
sketch5.addConstraint(Sketcher.Constraint("Vertical", 5))
sketch5.addConstraint(Sketcher.Constraint("Horizontal", 7))
sketch5.addConstraint(Sketcher.Constraint("Vertical", 8))
sketch5.addConstraint(Sketcher.Constraint("Horizontal", 9))
sketch5.addConstraint(Sketcher.Constraint("Horizontal", 10))
sketch5.addConstraint(Sketcher.Constraint("Vertical", 11))
sketch5.addConstraint(Sketcher.Constraint("Horizontal", 13))
sketch5.addConstraint(Sketcher.Constraint("Vertical", 14))
sketch5.addConstraint(Sketcher.Constraint("Horizontal", 15))
sketch5.addConstraint(Sketcher.Constraint("Vertical", 17))
sketch5.addConstraint(Sketcher.Constraint("Horizontal", 18))
sketch5.addConstraint(Sketcher.Constraint("Vertical", 19))
sketch5.addConstraint(Sketcher.Constraint("Equal", 1, 6))
sketch5.addConstraint(Sketcher.Constraint("Equal", 6, 12))
sketch5.addConstraint(Sketcher.Constraint("Equal", 12, 16))
sketch5.addConstraint(Sketcher.Constraint("Symmetric", 6, 3, 12, 3, -1, 1))
sketch5.addConstraint(Sketcher.Constraint("Symmetric", 1, 3, 16, 3, -1, 1))
sketch5.addConstraint(Sketcher.Constraint("Symmetric", 8, 2, 14, 2, -1, 1))
sketch5.addConstraint(Sketcher.Constraint("Symmetric", 3, 2, 18, 2, -1, 1))
sketch5.addConstraint(Sketcher.Constraint("Symmetric", 1, 3, 6, 3, -2))
sketch5.addConstraint(Sketcher.Constraint("Symmetric", 3, 2, 8, 2, -2))
sketch5.addConstraint(Sketcher.Constraint("Equal", 15, 2))
sketch5.addConstraint(Sketcher.Constraint("Radius", 1, Q("4 mm")))
sketch5.addConstraint(Sketcher.Constraint("DistanceX", 0, 1, 0, 2, Q("4 mm")))
sketch5.addConstraint(Sketcher.Constraint("DistanceX", 1, 3, -1, 1, Q("17 mm")))
sketch5.addConstraint(Sketcher.Constraint("DistanceY", 1, 3, -1, 1, Q("17 mm")))
pocket1 = doc.addObject("PartDesign::Pocket", "Pocket")
body.addObject(pocket1)
pocket1.Profile = sketch5
pocket1.Length = 2.5
pocket1.Reversed = True

# Sketch on XZ plane
sketch6 = doc.addObject("Sketcher::SketchObject", "Sketch005")
body.addObject(sketch6)
sketch6.AttachmentSupport = (doc.XZ_Plane, [""])
sketch6.MapMode = "FlatFace"
sketch6.addGeometry(Part.Circle(App.Vector(-17, -17, 0), App.Vector(0, 0, 1), 1.35), False)
sketch6.addGeometry(Part.Circle(App.Vector(17, -17, 0), App.Vector(0, 0, 1), 1.35), False)
sketch6.addGeometry(Part.Circle(App.Vector(-17, 17, 0), App.Vector(0, 0, 1), 1.35), False)
sketch6.addGeometry(Part.Circle(App.Vector(17, 17, 0), App.Vector(0, 0, 1), 1.35), False)
sketch6.addConstraint(Sketcher.Constraint("Equal", 0, 1))
sketch6.addConstraint(Sketcher.Constraint("Equal", 1, 2))
sketch6.addConstraint(Sketcher.Constraint("Equal", 2, 3))
sketch6.addConstraint(Sketcher.Constraint("Symmetric", 1, 3, 2, 3, -1, 1))
sketch6.addConstraint(Sketcher.Constraint("Symmetric", 0, 3, 3, 3, -1, 1))
sketch6.addConstraint(Sketcher.Constraint("Symmetric", 0, 3, 1, 3, -2))
sketch6.addConstraint(Sketcher.Constraint("Diameter", 0, Q("2.7 mm")))
sketch6.addConstraint(Sketcher.Constraint("DistanceX", 0, 3, -1, 1, Q("17 mm")))
sketch6.addConstraint(Sketcher.Constraint("DistanceY", 0, 3, -1, 1, Q("17 mm")))
pocket2 = doc.addObject("PartDesign::Pocket", "Pocket001")
body.addObject(pocket2)
pocket2.Profile = sketch6
pocket2.Type = "ThroughAll"
pocket2.Reversed = True
doc.recompute()

fillet = doc.addObject("PartDesign::Fillet", "Fillet")
body.addObject(fillet)
fillet.Base = (pocket2, edges_at(pocket2, [
    (21, -3.75, 21),
    (-21, -3.75, 21),
    (-21, -3.75, -21),
    (21, -3.75, -21),
]))
fillet.Radius = 3
doc.recompute()

fillet2 = doc.addObject("PartDesign::Fillet", "Fillet001")
body.addObject(fillet2)
fillet2.Base = (fillet, edges_at(fillet, [
    (13, -1.25, -21),
    (21, -1.25, -13),
    (-21, -1.25, 13),
    (-13, -1.25, 21),
    (21, -1.25, 13),
    (13, -1.25, 21),
    (-21, -1.25, -13),
    (-13, -1.25, -21),
]))
fillet2.Radius = 1
doc.recompute()

chamfer = doc.addObject("PartDesign::Chamfer", "Chamfer")
body.addObject(chamfer)
chamfer.Base = (fillet2, edges_at(fillet2, [(-5.5, -2, -6)]))
chamfer.Size = 0.5

# Sketch on XY plane
sketch7 = doc.addObject("Sketcher::SketchObject", "Sketch006")
body.addObject(sketch7)
sketch7.AttachmentSupport = (doc.XY_Plane, [""])
sketch7.MapMode = "FlatFace"
sketch7.AttachmentOffset = App.Placement(App.Vector(0, 0, 21), App.Rotation())
add_polygon(sketch7, [(-10.16, -2), (-10.16, -7), (10.16, -7), (10.16, -2)])  # lines 0-3
sketch7.addConstraint(Sketcher.Constraint("Vertical", 0))
sketch7.addConstraint(Sketcher.Constraint("Horizontal", 1))
sketch7.addConstraint(Sketcher.Constraint("Vertical", 2))
sketch7.addConstraint(Sketcher.Constraint("Horizontal", 3))
sketch7.addConstraint(Sketcher.Constraint("DistanceY", 0, 2, 0, 1, Q("5 mm")))
sketch7.addConstraint(Sketcher.Constraint("DistanceY", 0, 2, -1, 1, Q("7 mm")))
sketch7.addConstraint(Sketcher.Constraint("DistanceX", 1, 1, 1, 2, Q("20.32 mm")))
sketch7.addConstraint(Sketcher.Constraint("DistanceX", 0, 2, -1, 1, Q("10.16 mm")))
pocket3 = doc.addObject("PartDesign::Pocket", "Pocket002")
body.addObject(pocket3)
pocket3.Profile = sketch7
pocket3.Length = 5.5

doc.recompute()
